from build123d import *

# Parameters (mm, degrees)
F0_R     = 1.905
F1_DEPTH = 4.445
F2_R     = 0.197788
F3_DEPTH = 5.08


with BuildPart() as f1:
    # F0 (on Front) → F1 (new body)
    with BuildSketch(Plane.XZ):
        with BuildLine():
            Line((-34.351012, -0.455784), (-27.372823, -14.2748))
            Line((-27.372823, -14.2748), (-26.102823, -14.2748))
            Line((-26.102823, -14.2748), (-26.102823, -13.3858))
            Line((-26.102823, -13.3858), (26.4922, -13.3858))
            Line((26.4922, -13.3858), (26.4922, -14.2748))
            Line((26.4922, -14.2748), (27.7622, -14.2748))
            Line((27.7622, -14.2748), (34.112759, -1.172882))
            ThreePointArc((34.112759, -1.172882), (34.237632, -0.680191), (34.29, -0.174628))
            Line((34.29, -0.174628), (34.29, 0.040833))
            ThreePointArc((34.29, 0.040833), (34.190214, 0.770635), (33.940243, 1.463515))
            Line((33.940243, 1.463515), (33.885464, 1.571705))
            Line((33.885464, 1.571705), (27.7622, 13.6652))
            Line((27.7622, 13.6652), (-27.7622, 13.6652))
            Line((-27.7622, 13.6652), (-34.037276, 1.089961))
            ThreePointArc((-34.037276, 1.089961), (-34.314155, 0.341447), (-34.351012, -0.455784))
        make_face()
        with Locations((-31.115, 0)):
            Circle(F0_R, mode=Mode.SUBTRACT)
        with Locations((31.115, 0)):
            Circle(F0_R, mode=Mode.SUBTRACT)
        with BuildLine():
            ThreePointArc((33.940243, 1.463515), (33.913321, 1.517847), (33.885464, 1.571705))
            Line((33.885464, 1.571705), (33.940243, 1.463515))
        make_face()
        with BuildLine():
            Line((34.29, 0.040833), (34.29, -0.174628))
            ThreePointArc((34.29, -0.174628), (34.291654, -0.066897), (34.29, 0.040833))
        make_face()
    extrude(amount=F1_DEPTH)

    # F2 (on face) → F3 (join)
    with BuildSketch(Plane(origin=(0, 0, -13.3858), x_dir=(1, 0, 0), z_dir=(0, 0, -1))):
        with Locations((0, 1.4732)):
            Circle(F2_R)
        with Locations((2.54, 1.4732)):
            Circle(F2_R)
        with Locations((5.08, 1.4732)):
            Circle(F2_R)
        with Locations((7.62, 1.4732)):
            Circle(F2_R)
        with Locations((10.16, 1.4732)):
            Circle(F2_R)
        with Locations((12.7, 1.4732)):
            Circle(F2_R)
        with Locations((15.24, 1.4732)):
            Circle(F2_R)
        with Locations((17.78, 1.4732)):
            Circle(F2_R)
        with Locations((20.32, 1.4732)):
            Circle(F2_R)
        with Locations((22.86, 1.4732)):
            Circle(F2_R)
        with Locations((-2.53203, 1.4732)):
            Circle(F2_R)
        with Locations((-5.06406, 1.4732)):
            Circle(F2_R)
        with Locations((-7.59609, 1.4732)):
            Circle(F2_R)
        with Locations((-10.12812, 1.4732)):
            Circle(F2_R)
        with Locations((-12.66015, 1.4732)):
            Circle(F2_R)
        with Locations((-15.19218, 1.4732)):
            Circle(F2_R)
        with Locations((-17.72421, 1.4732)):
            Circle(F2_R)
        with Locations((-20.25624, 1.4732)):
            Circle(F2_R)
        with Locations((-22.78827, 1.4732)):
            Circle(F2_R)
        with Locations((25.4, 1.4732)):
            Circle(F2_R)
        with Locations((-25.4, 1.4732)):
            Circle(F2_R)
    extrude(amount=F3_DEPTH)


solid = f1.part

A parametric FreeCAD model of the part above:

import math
import FreeCAD as App
import Part
import Sketcher
Q = App.Units.Quantity

doc = App.newDocument("Part")
body = doc.addObject("PartDesign::Body", "Body")

# Sketch on XZ plane
sketch1 = doc.addObject("Sketcher::SketchObject", "Sketch")
body.addObject(sketch1)
sketch1.AttachmentSupport = (doc.XZ_Plane, [""])
sketch1.MapMode = "FlatFace"
sketch1.addGeometry(Part.LineSegment(App.Vector(-34.35, -0.46, 0), App.Vector(-27.37, -14.27, 0)), False)
sketch1.addGeometry(Part.LineSegment(App.Vector(-27.37, -14.27, 0), App.Vector(-26.1, -14.27, 0)), False)
sketch1.addGeometry(Part.LineSegment(App.Vector(-26.1, -14.27, 0), App.Vector(-26.1, -13.39, 0)), False)
sketch1.addGeometry(Part.LineSegment(App.Vector(-26.1, -13.39, 0), App.Vector(26.49, -13.39, 0)), False)
sketch1.addGeometry(Part.LineSegment(App.Vector(26.49, -13.39, 0), App.Vector(26.49, -14.27, 0)), False)
sketch1.addGeometry(Part.LineSegment(App.Vector(26.49, -14.27, 0), App.Vector(27.76, -14.27, 0)), False)
sketch1.addGeometry(Part.LineSegment(App.Vector(27.76, -14.27, 0), App.Vector(34.11, -1.17, 0)), False)
sketch1.addGeometry(Part.ArcOfCircle(Part.Circle(App.Vector(30.78, -0.07, 0), App.Vector(0, 0, 1), 3.51), math.radians(-18.38), math.radians(-1.76)), False)
sketch1.addGeometry(Part.ArcOfCircle(Part.Circle(App.Vector(30.78, -0.07, 0), App.Vector(0, 0, 1), 3.51), math.radians(-1.76), math.radians(1.76)), False)
sketch1.addGeometry(Part.ArcOfCircle(Part.Circle(App.Vector(30.78, -0.07, 0), App.Vector(0, 0, 1), 3.51), math.radians(2), math.radians(26)), False)
sketch1.addGeometry(Part.ArcOfCircle(Part.Circle(App.Vector(30.78, -0.07, 0), App.Vector(0, 0, 1), 3.51), math.radians(25.86), math.radians(27.84)), False)
sketch1.addGeometry(Part.LineSegment(App.Vector(33.89, 1.57, 0), App.Vector(27.76, 13.67, 0)), False)
sketch1.addGeometry(Part.LineSegment(App.Vector(27.76, 13.67, 0), App.Vector(-27.76, 13.67, 0)), False)
sketch1.addGeometry(Part.LineSegment(App.Vector(-27.76, 13.67, 0), App.Vector(-34.04, 1.09, 0)), False)
sketch1.addGeometry(Part.ArcOfCircle(Part.Circle(App.Vector(-31.77, -0.18, 0), App.Vector(0, 0, 1), 2.6), math.radians(151), math.radians(186)), False)
sketch1.addGeometry(Part.Circle(App.Vector(-31.11, 0, 0), App.Vector(0, 0, 1), 1.91), False)
sketch1.addGeometry(Part.Circle(App.Vector(31.11, 0, 0), App.Vector(0, 0, 1), 1.91), False)
sketch1.addConstraint(Sketcher.Constraint("Coincident", 0, 2, 1, 1))
sketch1.addConstraint(Sketcher.Constraint("Coincident", 1, 2, 2, 1))
sketch1.addConstraint(Sketcher.Constraint("Coincident", 2, 2, 3, 1))
sketch1.addConstraint(Sketcher.Constraint("Coincident", 3, 2, 4, 1))
sketch1.addConstraint(Sketcher.Constraint("Coincident", 4, 2, 5, 1))
sketch1.addConstraint(Sketcher.Constraint("Coincident", 5, 2, 6, 1))
sketch1.addConstraint(Sketcher.Constraint("Coincident", 6, 2, 7, 1))
sketch1.addConstraint(Sketcher.Constraint("Coincident", 7, 2, 8, 1))
sketch1.addConstraint(Sketcher.Constraint("Coincident", 8, 2, 9, 1))
sketch1.addConstraint(Sketcher.Constraint("Coincident", 9, 2, 10, 1))
sketch1.addConstraint(Sketcher.Constraint("Coincident", 10, 2, 11, 1))
sketch1.addConstraint(Sketcher.Constraint("Coincident", 11, 2, 12, 1))
sketch1.addConstraint(Sketcher.Constraint("Coincident", 12, 2, 13, 1))
sketch1.addConstraint(Sketcher.Constraint("Coincident", 13, 2, 14, 1))
sketch1.addConstraint(Sketcher.Constraint("Coincident", 14, 2, 0, 1))
sketch1.addConstraint(Sketcher.Constraint("Horizontal", 1))
sketch1.addConstraint(Sketcher.Constraint("Vertical", 2))
sketch1.addConstraint(Sketcher.Constraint("Horizontal", 3))
sketch1.addConstraint(Sketcher.Constraint("Vertical", 4))
sketch1.addConstraint(Sketcher.Constraint("Horizontal", 5))
sketch1.addConstraint(Sketcher.Constraint("Horizontal", 12))
sketch1.addConstraint(Sketcher.Constraint("Equal", 15, 16))
sketch1.addConstraint(Sketcher.Constraint("Symmetric", 15, 3, 16, 3, -1, 1))
sketch1.addConstraint(Sketcher.Constraint("PointOnObject", 15, 3, -1))
sketch1.addConstraint(Sketcher.Constraint("Horizontal", 8, 3, 9, 3))
sketch1.addConstraint(Sketcher.Constraint("Horizontal", 1, 2, 4, 2))
sketch1.addConstraint(Sketcher.Constraint("Vertical", 7, 2, 8, 2))
sketch1.addConstraint(Sketcher.Constraint("Vertical", 5, 2, 11, 2))
sketch1.addConstraint(Sketcher.Constraint("Equal", 1, 5))
sketch1.addConstraint(Sketcher.Constraint("Diameter", 15, Q("0.15 in")))
sketch1.addConstraint(Sketcher.Constraint("DistanceX", 1, 1, 1, 2, Q("0.05 in")))
sketch1.addConstraint(Sketcher.Constraint("DistanceY", 0, 2, 12, 2, Q("1.1 in")))
sketch1.addConstraint(Sketcher.Constraint("DistanceX", 12, 2, 12, 1, Q("2.186 in")))
sketch1.addConstraint(Sketcher.Constraint("DistanceY", 2, 1, 2, 2, Q("0.035 in")))
sketch1.addConstraint(Sketcher.Constraint("DistanceX", -1, 1, 7, 2, Q("1.35 in")))
sketch1.addConstraint(Sketcher.Constraint("DistanceX", 15, 3, 16, 3, Q("2.45 in")))
sketch1.addConstraint(Sketcher.Constraint("DistanceY", 0, 2, -1, 1, Q("0.562 in")))
sketch1.addConstraint(Sketcher.Constraint("DistanceX", -1, 1, 3, 2, Q("1.043 in")))
sketch1.addConstraint(Sketcher.Constraint("Radius", 8, 3.509249))
sketch1.addConstraint(Sketcher.Constraint("Radius", 7, 3.508168))
sketch1.addConstraint(Sketcher.Constraint("Radius", 9, 3.508205))
sketch1.addConstraint(Sketcher.Constraint("Radius", 10, 3.507376))
sketch1.addConstraint(Sketcher.Constraint("Radius", 14, 2.600627))
sketch1.addConstraint(Sketcher.Constraint("DistanceY", 7, 3, 10, 3, 0.000399))
sketch1.addConstraint(Sketcher.Constraint("DistanceX", 14, 3, 8, 3, 62.5479))
sketch1.addConstraint(Sketcher.Constraint("Distance", 6, 14.559871))
sketch1.addConstraint(Sketcher.Constraint("Distance", 11, 13.55533))
sketch1.addConstraint(Sketcher.Constraint("Distance", 13, 14.053939))
sketch1.addConstraint(Sketcher.Constraint("DistanceX", 3, 1, 3, 2, 52.595023))
sketch1.addConstraint(Sketcher.Constraint("DistanceX", -1, 1, 9, 3, 30.78345))
sketch1.addConstraint(Sketcher.Constraint("DistanceX", -1, 1, 10, 3, 30.784182))
sketch1.addConstraint(Sketcher.Constraint("DistanceY", 14, 3, -1, 1, 0.175848))
sketch1.addConstraint(Sketcher.Constraint("DistanceX", -1, 1, 6, 2, 34.112759))
sketch1.addConstraint(Sketcher.Constraint("DistanceX", 14, 2, -1, 1, 34.351012))
sketch1.addConstraint(Sketcher.Constraint("DistanceX", 10, 3, 9, 2, 3.156061))
pad1 = doc.addObject("PartDesign::Pad", "Pad")
body.addObject(pad1)
pad1.Profile = sketch1
pad1.Length = Q("0.175 in")

# Sketch on XY plane
sketch2 = doc.addObject("Sketcher::SketchObject", "Sketch001")
body.addObject(sketch2)
sketch2.AttachmentSupport = (doc.XY_Plane, [""])
sketch2.MapMode = "FlatFace"
sketch2.AttachmentOffset = App.Placement(App.Vector(0, 0, -0.527 * 25.4), App.Rotation())
sketch2.addGeometry(Part.Circle(App.Vector(0, -1.47, 0), App.Vector(0, 0, 1), 0.2), False)
sketch2.addGeometry(Part.Circle(App.Vector(2.54, -1.47, 0), App.Vector(0, 0, 1), 0.2), False)
sketch2.addGeometry(Part.Circle(App.Vector(5.08, -1.47, 0), App.Vector(0, 0, 1), 0.2), False)
sketch2.addGeometry(Part.Circle(App.Vector(7.62, -1.47, 0), App.Vector(0, 0, 1), 0.2), False)
sketch2.addGeometry(Part.Circle(App.Vector(10.16, -1.47, 0), App.Vector(0, 0, 1), 0.2), False)
sketch2.addGeometry(Part.Circle(App.Vector(12.7, -1.47, 0), App.Vector(0, 0, 1), 0.2), False)
sketch2.addGeometry(Part.Circle(App.Vector(15.24, -1.47, 0), App.Vector(0, 0, 1), 0.2), False)
sketch2.addGeometry(Part.Circle(App.Vector(17.78, -1.47, 0), App.Vector(0, 0, 1), 0.2), False)
sketch2.addGeometry(Part.Circle(App.Vector(20.32, -1.47, 0), App.Vector(0, 0, 1), 0.2), False)
sketch2.addGeometry(Part.Circle(App.Vector(22.86, -1.47, 0), App.Vector(0, 0, 1), 0.2), False)
sketch2.addGeometry(Part.Circle(App.Vector(-2.53, -1.47, 0), App.Vector(0, 0, 1), 0.2), False)
sketch2.addGeometry(Part.Circle(App.Vector(-5.06, -1.47, 0), App.Vector(0, 0, 1), 0.2), False)
sketch2.addGeometry(Part.Circle(App.Vector(-7.6, -1.47, 0), App.Vector(0, 0, 1), 0.2), False)
sketch2.addGeometry(Part.Circle(App.Vector(-10.13, -1.47, 0), App.Vector(0, 0, 1), 0.2), False)
sketch2.addGeometry(Part.Circle(App.Vector(-12.66, -1.47, 0), App.Vector(0, 0, 1), 0.2), False)
sketch2.addGeometry(Part.Circle(App.Vector(-15.19, -1.47, 0), App.Vector(0, 0, 1), 0.2), False)
sketch2.addGeometry(Part.Circle(App.Vector(-17.72, -1.47, 0), App.Vector(0, 0, 1), 0.2), False)
sketch2.addGeometry(Part.Circle(App.Vector(-20.26, -1.47, 0), App.Vector(0, 0, 1), 0.2), False)
sketch2.addGeometry(Part.Circle(App.Vector(-22.79, -1.47, 0), App.Vector(0, 0, 1), 0.2), False)
sketch2.addGeometry(Part.Circle(App.Vector(25.4, -1.47, 0), App.Vector(0, 0, 1), 0.2), False)
sketch2.addGeometry(Part.Circle(App.Vector(-25.4, -1.47, 0), App.Vector(0, 0, 1), 0.2), False)
sketch2.addConstraint(Sketcher.Constraint("Equal", 0, 1))
sketch2.addConstraint(Sketcher.Constraint("Equal", 1, 2))
sketch2.addConstraint(Sketcher.Constraint("Equal", 2, 3))
sketch2.addConstraint(Sketcher.Constraint("Equal", 3, 4))
sketch2.addConstraint(Sketcher.Constraint("Equal", 4, 5))
sketch2.addConstraint(Sketcher.Constraint("Equal", 5, 6))
sketch2.addConstraint(Sketcher.Constraint("Equal", 6, 7))
sketch2.addConstraint(Sketcher.Constraint("Equal", 7, 8))
sketch2.addConstraint(Sketcher.Constraint("Equal", 8, 9))
sketch2.addConstraint(Sketcher.Constraint("Equal", 9, 10))
sketch2.addConstraint(Sketcher.Constraint("Equal", 10, 11))
sketch2.addConstraint(Sketcher.Constraint("Equal", 11, 12))
sketch2.addConstraint(Sketcher.Constraint("Equal", 12, 13))
sketch2.addConstraint(Sketcher.Constraint("Equal", 13, 14))
sketch2.addConstraint(Sketcher.Constraint("Equal", 14, 15))
sketch2.addConstraint(Sketcher.Constraint("Equal", 15, 16))
sketch2.addConstraint(Sketcher.Constraint("Equal", 16, 17))
sketch2.addConstraint(Sketcher.Constraint("Equal", 17, 18))
sketch2.addConstraint(Sketcher.Constraint("Equal", 18, 19))
sketch2.addConstraint(Sketcher.Constraint("Equal", 19, 20))
sketch2.addConstraint(Sketcher.Constraint("Symmetric", 19, 3, 20, 3, -2))
sketch2.addConstraint(Sketcher.Constraint("PointOnObject", 0, 3, -2))
sketch2.addConstraint(Sketcher.Constraint("Horizontal", 0, 3, 1, 3))
sketch2.addConstraint(Sketcher.Constraint("Horizontal", 1, 3, 2, 3))
sketch2.addConstraint(Sketcher.Constraint("Horizontal", 2, 3, 3, 3))
sketch2.addConstraint(Sketcher.Constraint("Horizontal", 3, 3, 4, 3))
sketch2.addConstraint(Sketcher.Constraint("Horizontal", 4, 3, 5, 3))
sketch2.addConstraint(Sketcher.Constraint("Horizontal", 5, 3, 6, 3))
sketch2.addConstraint(Sketcher.Constraint("Horizontal", 6, 3, 7, 3))
sketch2.addConstraint(Sketcher.Constraint("Horizontal", 7, 3, 8, 3))
sketch2.addConstraint(Sketcher.Constraint("Horizontal", 8, 3, 9, 3))
sketch2.addConstraint(Sketcher.Constraint("Horizontal", 9, 3, 10, 3))
sketch2.addConstraint(Sketcher.Constraint("Horizontal", 10, 3, 11, 3))
sketch2.addConstraint(Sketcher.Constraint("Horizontal", 11, 3, 12, 3))
sketch2.addConstraint(Sketcher.Constraint("Horizontal", 12, 3, 13, 3))
sketch2.addConstraint(Sketcher.Constraint("Horizontal", 13, 3, 14, 3))
sketch2.addConstraint(Sketcher.Constraint("Horizontal", 14, 3, 15, 3))
sketch2.addConstraint(Sketcher.Constraint("Horizontal", 15, 3, 16, 3))
sketch2.addConstraint(Sketcher.Constraint("Horizontal", 16, 3, 17, 3))
sketch2.addConstraint(Sketcher.Constraint("Horizontal", 17, 3, 18, 3))
sketch2.addConstraint(Sketcher.Constraint("Horizontal", 18, 3, 19, 3))
sketch2.addConstraint(Sketcher.Constraint("DistanceX", -1, 1, 19, 3, Q("1 in")))
sketch2.addConstraint(Sketcher.Constraint("DistanceX", -1, 1, 1, 3, Q("0.1 in")))
sketch2.addConstraint(Sketcher.Constraint("DistanceX", -1, 1, 2, 3, Q("0.2 in")))
sketch2.addConstraint(Sketcher.Constraint("DistanceX", -1, 1, 3, 3, Q("0.3 in")))
sketch2.addConstraint(Sketcher.Constraint("DistanceX", -1, 1, 4, 3, Q("0.4 in")))
sketch2.addConstraint(Sketcher.Constraint("DistanceX", -1, 1, 5, 3, Q("0.5 in")))
sketch2.addConstraint(Sketcher.Constraint("DistanceX", -1, 1, 6, 3, Q("0.6 in")))
sketch2.addConstraint(Sketcher.Constraint("DistanceX", -1, 1, 7, 3, Q("0.7 in")))
sketch2.addConstraint(Sketcher.Constraint("DistanceX", -1, 1, 8, 3, Q("0.8 in")))
sketch2.addConstraint(Sketcher.Constraint("DistanceX", -1, 1, 9, 3, Q("0.9 in")))
sketch2.addConstraint(Sketcher.Constraint("DistanceY", 0, 3, -1, 1, Q("0.058 in")))
sketch2.addConstraint(Sketcher.Constraint("Diameter", 0, 0.395576))
sketch2.addConstraint(Sketcher.Constraint("DistanceX", 10, 3, -1, 1, 2.53203))
sketch2.addConstraint(Sketcher.Constraint("DistanceX", 11, 3, -1, 1, 5.06406))
sketch2.addConstraint(Sketcher.Constraint("DistanceX", 12, 3, -1, 1, 7.59609))
sketch2.addConstraint(Sketcher.Constraint("DistanceX", 13, 3, -1, 1, 10.12812))
sketch2.addConstraint(Sketcher.Constraint("DistanceX", 14, 3, -1, 1, 12.66015))
sketch2.addConstraint(Sketcher.Constraint("DistanceX", 15, 3, -1, 1, 15.19218))
sketch2.addConstraint(Sketcher.Constraint("DistanceX", 16, 3, -1, 1, 17.72421))
sketch2.addConstraint(Sketcher.Constraint("DistanceX", 17, 3, -1, 1, 20.25624))
sketch2.addConstraint(Sketcher.Constraint("DistanceX", 18, 3, -1, 1, 22.78827))
pad2 = doc.addObject("PartDesign::Pad", "Pad001")
body.addObject(pad2)
pad2.Profile = sketch2
pad2.Length = Q("0.2 in")
pad2.Reversed = True

doc.recompute()
